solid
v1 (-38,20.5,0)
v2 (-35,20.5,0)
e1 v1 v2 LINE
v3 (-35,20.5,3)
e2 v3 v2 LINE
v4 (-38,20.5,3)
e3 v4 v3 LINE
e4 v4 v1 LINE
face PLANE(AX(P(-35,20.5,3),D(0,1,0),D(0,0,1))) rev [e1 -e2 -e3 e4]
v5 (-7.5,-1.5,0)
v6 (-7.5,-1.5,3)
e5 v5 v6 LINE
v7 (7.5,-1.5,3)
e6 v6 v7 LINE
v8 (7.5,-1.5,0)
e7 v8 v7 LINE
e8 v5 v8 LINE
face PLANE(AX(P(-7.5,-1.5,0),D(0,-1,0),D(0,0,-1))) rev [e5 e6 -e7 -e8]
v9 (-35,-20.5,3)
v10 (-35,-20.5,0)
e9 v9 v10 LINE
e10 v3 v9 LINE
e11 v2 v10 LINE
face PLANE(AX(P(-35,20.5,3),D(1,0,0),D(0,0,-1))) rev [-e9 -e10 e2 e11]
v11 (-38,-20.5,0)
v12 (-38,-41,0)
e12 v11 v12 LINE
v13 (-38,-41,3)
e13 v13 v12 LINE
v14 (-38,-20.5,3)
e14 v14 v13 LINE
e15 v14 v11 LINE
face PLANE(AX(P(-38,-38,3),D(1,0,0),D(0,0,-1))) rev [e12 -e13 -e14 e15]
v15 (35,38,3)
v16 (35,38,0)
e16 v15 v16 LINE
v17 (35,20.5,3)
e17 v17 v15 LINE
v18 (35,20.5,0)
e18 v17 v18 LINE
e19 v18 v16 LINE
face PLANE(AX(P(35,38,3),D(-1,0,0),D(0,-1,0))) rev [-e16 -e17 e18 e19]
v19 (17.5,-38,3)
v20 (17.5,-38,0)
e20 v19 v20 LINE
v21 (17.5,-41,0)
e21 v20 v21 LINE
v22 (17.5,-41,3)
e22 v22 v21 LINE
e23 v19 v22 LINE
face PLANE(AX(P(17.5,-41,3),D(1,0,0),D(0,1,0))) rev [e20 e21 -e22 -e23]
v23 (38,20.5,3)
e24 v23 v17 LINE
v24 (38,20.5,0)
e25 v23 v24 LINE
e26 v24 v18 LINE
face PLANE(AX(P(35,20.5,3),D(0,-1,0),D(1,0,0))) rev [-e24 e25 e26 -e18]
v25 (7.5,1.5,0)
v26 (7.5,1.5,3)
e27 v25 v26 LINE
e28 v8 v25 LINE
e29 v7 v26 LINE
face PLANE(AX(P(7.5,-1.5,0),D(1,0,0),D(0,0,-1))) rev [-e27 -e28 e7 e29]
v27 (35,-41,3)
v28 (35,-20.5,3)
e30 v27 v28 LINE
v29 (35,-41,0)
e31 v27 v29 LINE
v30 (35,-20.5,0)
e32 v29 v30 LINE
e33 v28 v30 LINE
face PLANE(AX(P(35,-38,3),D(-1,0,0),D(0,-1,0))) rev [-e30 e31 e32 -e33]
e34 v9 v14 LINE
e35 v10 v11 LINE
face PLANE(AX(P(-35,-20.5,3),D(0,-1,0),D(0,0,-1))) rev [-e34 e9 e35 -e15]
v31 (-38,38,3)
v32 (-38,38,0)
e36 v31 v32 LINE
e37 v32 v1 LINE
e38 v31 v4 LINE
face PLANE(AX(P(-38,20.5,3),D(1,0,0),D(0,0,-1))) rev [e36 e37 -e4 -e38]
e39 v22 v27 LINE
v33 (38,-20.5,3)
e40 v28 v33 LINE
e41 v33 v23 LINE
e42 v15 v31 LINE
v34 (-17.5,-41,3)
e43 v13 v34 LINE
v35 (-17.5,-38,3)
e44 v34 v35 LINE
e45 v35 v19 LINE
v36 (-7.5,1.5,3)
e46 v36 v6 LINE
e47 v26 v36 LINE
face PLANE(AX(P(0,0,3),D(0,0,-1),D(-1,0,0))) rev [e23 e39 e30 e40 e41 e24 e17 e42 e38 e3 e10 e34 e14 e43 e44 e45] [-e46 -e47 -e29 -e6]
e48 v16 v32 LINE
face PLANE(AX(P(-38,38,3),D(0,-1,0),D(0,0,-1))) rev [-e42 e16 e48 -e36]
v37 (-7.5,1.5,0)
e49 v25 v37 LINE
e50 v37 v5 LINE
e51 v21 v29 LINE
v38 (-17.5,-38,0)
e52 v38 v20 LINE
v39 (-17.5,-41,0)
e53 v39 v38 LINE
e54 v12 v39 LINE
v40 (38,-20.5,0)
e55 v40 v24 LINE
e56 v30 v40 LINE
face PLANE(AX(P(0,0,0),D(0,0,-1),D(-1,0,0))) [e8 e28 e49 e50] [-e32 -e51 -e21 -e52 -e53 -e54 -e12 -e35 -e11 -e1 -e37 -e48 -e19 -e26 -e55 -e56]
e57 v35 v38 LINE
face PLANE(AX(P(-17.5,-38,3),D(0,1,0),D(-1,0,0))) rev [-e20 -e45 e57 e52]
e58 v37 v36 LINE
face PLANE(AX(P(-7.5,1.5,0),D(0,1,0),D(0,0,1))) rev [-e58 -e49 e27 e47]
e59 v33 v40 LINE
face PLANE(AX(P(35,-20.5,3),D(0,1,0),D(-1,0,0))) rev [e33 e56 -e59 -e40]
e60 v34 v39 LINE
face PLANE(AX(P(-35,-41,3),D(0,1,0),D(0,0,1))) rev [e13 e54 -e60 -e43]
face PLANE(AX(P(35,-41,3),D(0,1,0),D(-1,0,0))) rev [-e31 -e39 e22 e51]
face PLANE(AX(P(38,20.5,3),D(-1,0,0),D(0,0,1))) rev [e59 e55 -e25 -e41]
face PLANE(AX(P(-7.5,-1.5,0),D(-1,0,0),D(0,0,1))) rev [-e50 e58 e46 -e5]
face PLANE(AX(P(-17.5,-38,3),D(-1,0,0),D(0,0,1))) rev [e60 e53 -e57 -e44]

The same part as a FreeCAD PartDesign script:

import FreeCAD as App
import Part
import Sketcher

V = App.Vector

doc = App.newDocument("Part")
body = doc.addObject("PartDesign::Body", "Body")

# Sketch on XY plane
sketch1 = body.newObject("Sketcher::SketchObject", "Sketch")
sketch1.AttachmentSupport = (doc.getObject("XY_Plane"), [""])
sketch1.MapMode = "FlatFace"
sketch1.addGeometry(Part.LineSegment(V(35, 38, 0), V(-38, 38, 0)), False)
sketch1.addGeometry(Part.LineSegment(V(-38, 38, 0), V(-38, 20.5, 0)), False)
sketch1.addGeometry(Part.LineSegment(V(-38, 20.5, 0), V(-35, 20.5, 0)), False)
sketch1.addGeometry(Part.LineSegment(V(-35, 20.5, 0), V(-35, -20.5, 0)), False)
sketch1.addGeometry(Part.LineSegment(V(-35, -20.5, 0), V(-38, -20.5, 0)), False)
sketch1.addGeometry(Part.LineSegment(V(-38, -20.5, 0), V(-38, -41, 0)), False)
sketch1.addGeometry(Part.LineSegment(V(-38, -41, 0), V(-17.5, -41, 0)), False)
sketch1.addGeometry(Part.LineSegment(V(-17.5, -41, 0), V(-17.5, -38, 0)), False)
sketch1.addGeometry(Part.LineSegment(V(-17.5, -38, 0), V(17.5, -38, 0)), False)
sketch1.addGeometry(Part.LineSegment(V(17.5, -38, 0), V(17.5, -41, 0)), False)
sketch1.addGeometry(Part.LineSegment(V(17.5, -41, 0), V(35, -41, 0)), False)
sketch1.addGeometry(Part.LineSegment(V(35, -41, 0), V(35, -20.5, 0)), False)
sketch1.addGeometry(Part.LineSegment(V(35, -20.5, 0), V(38, -20.5, 0)), False)
sketch1.addGeometry(Part.LineSegment(V(38, -20.5, 0), V(38, 20.5, 0)), False)
sketch1.addGeometry(Part.LineSegment(V(38, 20.5, 0), V(35, 20.5, 0)), False)
sketch1.addGeometry(Part.LineSegment(V(35, 20.5, 0), V(35, 38, 0)), False)
sketch1.addConstraint(Sketcher.Constraint("Coincident", 0, 2, 1, 1))
sketch1.addConstraint(Sketcher.Constraint("Coincident", 1, 2, 2, 1))
sketch1.addConstraint(Sketcher.Constraint("Coincident", 2, 2, 3, 1))
sketch1.addConstraint(Sketcher.Constraint("Coincident", 3, 2, 4, 1))
sketch1.addConstraint(Sketcher.Constraint("Coincident", 4, 2, 5, 1))
sketch1.addConstraint(Sketcher.Constraint("Coincident", 5, 2, 6, 1))
sketch1.addConstraint(Sketcher.Constraint("Coincident", 6, 2, 7, 1))
sketch1.addConstraint(Sketcher.Constraint("Coincident", 7, 2, 8, 1))
sketch1.addConstraint(Sketcher.Constraint("Coincident", 8, 2, 9, 1))
sketch1.addConstraint(Sketcher.Constraint("Coincident", 9, 2, 10, 1))
sketch1.addConstraint(Sketcher.Constraint("Coincident", 10, 2, 11, 1))
sketch1.addConstraint(Sketcher.Constraint("Coincident", 11, 2, 12, 1))
sketch1.addConstraint(Sketcher.Constraint("Coincident", 12, 2, 13, 1))
sketch1.addConstraint(Sketcher.Constraint("Coincident", 13, 2, 14, 1))
sketch1.addConstraint(Sketcher.Constraint("Coincident", 14, 2, 15, 1))
sketch1.addConstraint(Sketcher.Constraint("Coincident", 15, 2, 0, 1))
sketch1.addConstraint(Sketcher.Constraint("Horizontal", 0))
sketch1.addConstraint(Sketcher.Constraint("Vertical", 1))
sketch1.addConstraint(Sketcher.Constraint("Horizontal", 2))
sketch1.addConstraint(Sketcher.Constraint("Vertical", 3))
sketch1.addConstraint(Sketcher.Constraint("Horizontal", 4))
sketch1.addConstraint(Sketcher.Constraint("Vertical", 5))
sketch1.addConstraint(Sketcher.Constraint("Horizontal", 6))
sketch1.addConstraint(Sketcher.Constraint("Vertical", 7))
sketch1.addConstraint(Sketcher.Constraint("Horizontal", 8))
sketch1.addConstraint(Sketcher.Constraint("Vertical", 9))
sketch1.addConstraint(Sketcher.Constraint("Horizontal", 10))
sketch1.addConstraint(Sketcher.Constraint("Vertical", 11))
sketch1.addConstraint(Sketcher.Constraint("Horizontal", 12))
sketch1.addConstraint(Sketcher.Constraint("Vertical", 13))
sketch1.addConstraint(Sketcher.Constraint("Horizontal", 14))
sketch1.addConstraint(Sketcher.Constraint("Vertical", 15))
sketch1.addConstraint(Sketcher.Constraint("Symmetric", 2, 2, 11, 2, -1, 1))
sketch1.addConstraint(Sketcher.Constraint("Symmetric", 4, 2, 13, 2, -1, 1))
sketch1.addConstraint(Sketcher.Constraint("Symmetric", 6, 2, 9, 2, -2))
sketch1.addConstraint(Sketcher.Constraint("Symmetric", 1, 2, 13, 2, -2))
sketch1.addConstraint(Sketcher.Constraint("Vertical", 11, 2, 14, 2))
sketch1.addConstraint(Sketcher.Constraint("Equal", 10, 1))
sketch1.addConstraint(Sketcher.Constraint("Equal", 6, 5))
sketch1.addConstraint(Sketcher.Constraint("Equal", 14, 7))
sketch1.addConstraint(Sketcher.Constraint("DistanceX", 0, 2, 0, 1, 73.0))
sketch1.addConstraint(Sketcher.Constraint("DistanceX", 2, 1, 2, 2, 3.0))
sketch1.addConstraint(Sketcher.Constraint("DistanceX", 8, 1, 8, 2, 35.0))
sketch1.addConstraint(Sketcher.Constraint("DistanceY", 3, 2, 3, 1, 41.0))
pad1 = body.newObject("PartDesign::Pad", "Pad")
pad1.Profile = sketch1
pad1.Length = 3

# Sketch on XY plane
sketch2 = body.newObject("Sketcher::SketchObject", "Sketch001")
sketch2.AttachmentSupport = (doc.getObject("XY_Plane"), [""])
sketch2.MapMode = "FlatFace"
sketch2.AttachmentOffset = App.Placement(V(0, 0, 3), App.Rotation())
sketch2.addGeometry(Part.LineSegment(V(-7.5, 1.5, 0), V(-7.5, -1.5, 0)), False)
sketch2.addGeometry(Part.LineSegment(V(-7.5, -1.5, 0), V(7.5, -1.5, 0)), False)
sketch2.addGeometry(Part.LineSegment(V(7.5, -1.5, 0), V(7.5, 1.5, 0)), False)
sketch2.addGeometry(Part.LineSegment(V(7.5, 1.5, 0), V(-7.5, 1.5, 0)), False)
sketch2.addConstraint(Sketcher.Constraint("Coincident", 0, 2, 1, 1))
sketch2.addConstraint(Sketcher.Constraint("Coincident", 1, 2, 2, 1))
sketch2.addConstraint(Sketcher.Constraint("Coincident", 2, 2, 3, 1))
sketch2.addConstraint(Sketcher.Constraint("Coincident", 3, 2, 0, 1))
sketch2.addConstraint(Sketcher.Constraint("Vertical", 0))
sketch2.addConstraint(Sketcher.Constraint("Horizontal", 1))
sketch2.addConstraint(Sketcher.Constraint("Vertical", 2))
sketch2.addConstraint(Sketcher.Constraint("Horizontal", 3))
sketch2.addConstraint(Sketcher.Constraint("Symmetric", 0, 2, 2, 2, -1, 1))
sketch2.addConstraint(Sketcher.Constraint("DistanceX", 1, 1, 1, 2, 15.0))
sketch2.addConstraint(Sketcher.Constraint("DistanceY", 0, 2, 0, 1, 3.0))
pocket1 = body.newObject("PartDesign::Pocket", "Pocket")
pocket1.Profile = sketch2
pocket1.Length = 3

doc.recompute()
